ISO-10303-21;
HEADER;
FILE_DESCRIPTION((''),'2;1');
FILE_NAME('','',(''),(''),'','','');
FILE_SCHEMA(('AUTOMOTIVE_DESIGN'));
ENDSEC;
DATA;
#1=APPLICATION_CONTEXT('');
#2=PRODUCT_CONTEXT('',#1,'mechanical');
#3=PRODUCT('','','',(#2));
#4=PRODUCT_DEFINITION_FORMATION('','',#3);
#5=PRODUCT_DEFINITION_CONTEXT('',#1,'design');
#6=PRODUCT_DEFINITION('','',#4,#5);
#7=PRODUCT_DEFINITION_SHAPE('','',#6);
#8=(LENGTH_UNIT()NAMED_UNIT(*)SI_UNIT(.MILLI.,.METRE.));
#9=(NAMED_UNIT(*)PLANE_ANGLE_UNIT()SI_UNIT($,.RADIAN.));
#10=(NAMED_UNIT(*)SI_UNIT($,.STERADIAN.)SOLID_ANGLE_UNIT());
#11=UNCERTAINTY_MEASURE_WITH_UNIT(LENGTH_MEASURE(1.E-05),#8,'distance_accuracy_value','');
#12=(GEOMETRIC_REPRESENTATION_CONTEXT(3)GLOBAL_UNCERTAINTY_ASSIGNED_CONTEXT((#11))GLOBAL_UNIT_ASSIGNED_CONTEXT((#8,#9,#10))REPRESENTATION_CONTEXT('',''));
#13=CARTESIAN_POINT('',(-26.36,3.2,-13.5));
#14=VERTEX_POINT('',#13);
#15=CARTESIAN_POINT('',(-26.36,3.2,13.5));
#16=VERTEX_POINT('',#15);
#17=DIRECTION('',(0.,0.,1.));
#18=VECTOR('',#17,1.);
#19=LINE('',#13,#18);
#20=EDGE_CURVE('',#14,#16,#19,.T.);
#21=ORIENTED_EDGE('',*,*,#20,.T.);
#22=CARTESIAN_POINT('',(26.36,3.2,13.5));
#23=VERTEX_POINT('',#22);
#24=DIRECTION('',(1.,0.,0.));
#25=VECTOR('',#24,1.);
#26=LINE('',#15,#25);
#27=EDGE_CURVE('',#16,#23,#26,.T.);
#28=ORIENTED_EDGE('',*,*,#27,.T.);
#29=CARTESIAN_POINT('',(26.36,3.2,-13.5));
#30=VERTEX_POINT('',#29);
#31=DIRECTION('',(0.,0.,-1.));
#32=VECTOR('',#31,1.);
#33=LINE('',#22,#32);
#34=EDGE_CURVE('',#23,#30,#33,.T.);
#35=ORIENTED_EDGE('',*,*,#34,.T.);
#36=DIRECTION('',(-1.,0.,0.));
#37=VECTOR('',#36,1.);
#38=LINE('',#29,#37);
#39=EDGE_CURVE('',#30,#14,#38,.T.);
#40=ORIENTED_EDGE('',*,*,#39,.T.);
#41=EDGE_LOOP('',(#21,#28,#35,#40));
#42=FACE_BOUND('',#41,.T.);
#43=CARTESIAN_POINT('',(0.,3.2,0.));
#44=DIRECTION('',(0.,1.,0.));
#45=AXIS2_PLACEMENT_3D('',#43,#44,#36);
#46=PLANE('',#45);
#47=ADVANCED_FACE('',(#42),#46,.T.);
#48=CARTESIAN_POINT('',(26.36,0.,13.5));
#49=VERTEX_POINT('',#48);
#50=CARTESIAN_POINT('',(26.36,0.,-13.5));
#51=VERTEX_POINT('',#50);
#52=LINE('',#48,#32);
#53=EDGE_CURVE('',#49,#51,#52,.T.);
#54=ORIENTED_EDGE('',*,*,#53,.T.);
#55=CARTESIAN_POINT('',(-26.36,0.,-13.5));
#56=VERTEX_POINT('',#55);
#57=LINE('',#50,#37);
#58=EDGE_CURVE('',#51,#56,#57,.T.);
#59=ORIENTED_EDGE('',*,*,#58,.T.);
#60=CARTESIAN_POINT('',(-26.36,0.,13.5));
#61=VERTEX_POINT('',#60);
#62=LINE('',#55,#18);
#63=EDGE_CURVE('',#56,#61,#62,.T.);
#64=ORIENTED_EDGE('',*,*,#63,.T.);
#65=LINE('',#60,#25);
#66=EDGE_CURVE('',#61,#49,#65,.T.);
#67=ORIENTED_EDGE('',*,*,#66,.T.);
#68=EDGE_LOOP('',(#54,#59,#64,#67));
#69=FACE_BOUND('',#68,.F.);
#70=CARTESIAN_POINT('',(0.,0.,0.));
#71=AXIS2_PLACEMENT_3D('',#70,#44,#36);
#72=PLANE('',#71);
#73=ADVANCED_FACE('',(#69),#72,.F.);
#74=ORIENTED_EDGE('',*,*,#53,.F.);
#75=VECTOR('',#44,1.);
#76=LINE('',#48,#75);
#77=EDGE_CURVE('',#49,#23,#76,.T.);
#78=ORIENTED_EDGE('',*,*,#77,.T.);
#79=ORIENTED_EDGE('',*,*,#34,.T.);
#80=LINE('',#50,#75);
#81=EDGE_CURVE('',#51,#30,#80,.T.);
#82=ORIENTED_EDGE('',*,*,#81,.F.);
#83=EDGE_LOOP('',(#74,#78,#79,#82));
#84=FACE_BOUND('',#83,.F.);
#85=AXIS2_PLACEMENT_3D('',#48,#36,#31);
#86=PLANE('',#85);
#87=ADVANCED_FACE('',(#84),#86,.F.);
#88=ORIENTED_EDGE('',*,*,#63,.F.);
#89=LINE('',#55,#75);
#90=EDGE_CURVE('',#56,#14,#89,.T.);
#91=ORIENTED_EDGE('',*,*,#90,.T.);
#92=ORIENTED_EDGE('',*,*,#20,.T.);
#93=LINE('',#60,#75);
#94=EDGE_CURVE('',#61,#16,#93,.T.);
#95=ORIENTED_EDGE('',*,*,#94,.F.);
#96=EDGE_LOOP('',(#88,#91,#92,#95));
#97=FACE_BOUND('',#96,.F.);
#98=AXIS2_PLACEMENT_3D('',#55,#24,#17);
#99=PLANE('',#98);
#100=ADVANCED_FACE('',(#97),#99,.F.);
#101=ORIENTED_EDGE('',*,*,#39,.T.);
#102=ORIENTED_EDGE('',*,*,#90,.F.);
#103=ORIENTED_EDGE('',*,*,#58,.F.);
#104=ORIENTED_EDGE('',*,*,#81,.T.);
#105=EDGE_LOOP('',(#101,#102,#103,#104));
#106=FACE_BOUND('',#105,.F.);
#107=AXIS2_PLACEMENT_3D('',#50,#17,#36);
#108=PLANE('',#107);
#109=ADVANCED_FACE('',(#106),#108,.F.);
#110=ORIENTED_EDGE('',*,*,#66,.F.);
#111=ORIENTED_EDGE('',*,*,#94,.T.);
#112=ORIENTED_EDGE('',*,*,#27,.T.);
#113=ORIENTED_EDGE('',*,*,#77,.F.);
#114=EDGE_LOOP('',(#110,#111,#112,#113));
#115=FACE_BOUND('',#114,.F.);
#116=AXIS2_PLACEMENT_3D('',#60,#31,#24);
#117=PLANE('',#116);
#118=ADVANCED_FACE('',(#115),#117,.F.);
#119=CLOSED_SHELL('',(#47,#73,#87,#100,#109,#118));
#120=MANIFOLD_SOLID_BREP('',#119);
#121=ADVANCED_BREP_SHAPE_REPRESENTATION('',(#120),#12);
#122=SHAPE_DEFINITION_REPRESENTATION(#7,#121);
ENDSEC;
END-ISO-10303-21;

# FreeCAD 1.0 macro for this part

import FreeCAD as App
import Part
import Sketcher

V = App.Vector


def add_polygon(sketch, points):
    """Adds a closed chain of lines whose ends are joined by coincident constraints."""
    first, n = sketch.GeometryCount, len(points)
    for a, b in zip(points, points[1:] + points[:1]):
        sketch.addGeometry(Part.LineSegment(App.Vector(*a, 0), App.Vector(*b, 0)), False)
    for i in range(n):
        sketch.addConstraint(Sketcher.Constraint("Coincident", first + i, 2, first + (i + 1) % n, 1))

doc = App.newDocument("Part")
body = doc.addObject("PartDesign::Body", "Body")

sketch1 = body.newObject("Sketcher::SketchObject", "Sketch")
sketch1.AttachmentSupport = (doc.getObject("XZ_Plane"), [""])
sketch1.MapMode = "FlatFace"
add_polygon(sketch1, [(-26, -14), (-26, 14), (26, 14), (26, -14)])
sketch1.addConstraint([
    Sketcher.Constraint("Vertical", 0),
    Sketcher.Constraint("Horizontal", 1),
    Sketcher.Constraint("Vertical", 2),
    Sketcher.Constraint("Horizontal", 3),
    Sketcher.Constraint("Symmetric", 0, 2, 2, 2, -1, 1),
    Sketcher.Constraint("DistanceY", 0, 1, 0, 2, 27.0),
    Sketcher.Constraint("DistanceX", 1, 1, 1, 2, 52.72),
])
pad1 = body.newObject("PartDesign::Pad", "Pad")
pad1.Profile = sketch1
pad1.Length = 3.2
pad1.Reversed = True

doc.recompute()
